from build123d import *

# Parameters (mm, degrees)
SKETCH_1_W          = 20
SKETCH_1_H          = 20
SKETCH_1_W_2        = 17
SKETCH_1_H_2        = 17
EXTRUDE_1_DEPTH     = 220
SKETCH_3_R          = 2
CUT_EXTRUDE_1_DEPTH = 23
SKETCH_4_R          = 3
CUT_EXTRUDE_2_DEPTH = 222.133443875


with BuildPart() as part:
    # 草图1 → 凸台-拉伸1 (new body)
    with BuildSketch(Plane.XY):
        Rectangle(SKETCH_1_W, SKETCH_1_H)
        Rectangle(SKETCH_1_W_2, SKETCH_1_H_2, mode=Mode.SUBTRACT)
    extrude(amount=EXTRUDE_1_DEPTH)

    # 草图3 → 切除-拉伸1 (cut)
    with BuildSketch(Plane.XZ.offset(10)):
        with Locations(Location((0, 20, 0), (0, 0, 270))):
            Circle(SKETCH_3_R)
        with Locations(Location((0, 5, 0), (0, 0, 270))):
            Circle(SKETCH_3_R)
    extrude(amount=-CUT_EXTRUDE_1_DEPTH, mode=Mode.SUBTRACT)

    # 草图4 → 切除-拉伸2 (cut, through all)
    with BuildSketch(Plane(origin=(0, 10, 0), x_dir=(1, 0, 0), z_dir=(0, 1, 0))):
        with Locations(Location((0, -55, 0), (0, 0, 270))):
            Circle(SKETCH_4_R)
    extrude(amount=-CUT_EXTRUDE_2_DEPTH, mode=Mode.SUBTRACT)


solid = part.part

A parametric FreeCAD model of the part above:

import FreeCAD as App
import Part
import Sketcher

V = App.Vector


def add_polygon(sketch, points):
    """Adds a closed chain of lines whose ends are joined by coincident constraints."""
    first, n = sketch.GeometryCount, len(points)
    for a, b in zip(points, points[1:] + points[:1]):
        sketch.addGeometry(Part.LineSegment(App.Vector(*a, 0), App.Vector(*b, 0)), False)
    for i in range(n):
        sketch.addConstraint(Sketcher.Constraint("Coincident", first + i, 2, first + (i + 1) % n, 1))

doc = App.newDocument("Part")
body = doc.addObject("PartDesign::Body", "Body")

# Sketch on XY plane
sketch1 = body.newObject("Sketcher::SketchObject", "Sketch")
sketch1.AttachmentSupport = (doc.getObject("XY_Plane"), [""])
sketch1.MapMode = "FlatFace"
add_polygon(sketch1, [(-10, 10), (-10, -10), (10, -10), (10, 10)])  # lines 0-3
add_polygon(sketch1, [(8, -8), (-8, -8), (-8, 8), (8, 8)])  # lines 4-7
sketch1.addConstraint([
    Sketcher.Constraint("Vertical", 0),
    Sketcher.Constraint("Horizontal", 1),
    Sketcher.Constraint("Vertical", 2),
    Sketcher.Constraint("Horizontal", 3),
    Sketcher.Constraint("Horizontal", 4),
    Sketcher.Constraint("Vertical", 5),
    Sketcher.Constraint("Horizontal", 6),
    Sketcher.Constraint("Vertical", 7),
    Sketcher.Constraint("Symmetric", 0, 2, 2, 2, -1, 1),
    Sketcher.Constraint("Symmetric", 4, 2, 6, 2, -1, 1),
    Sketcher.Constraint("Equal", 3, 0),
    Sketcher.Constraint("Equal", 6, 5),
    Sketcher.Constraint("DistanceX", 1, 1, 1, 2, 20.0),
    Sketcher.Constraint("DistanceX", 4, 2, 4, 1, 17.0),
])
pad1 = body.newObject("PartDesign::Pad", "Pad")
pad1.Profile = sketch1
pad1.Length = 220

# Sketch on XZ plane
sketch2 = body.newObject("Sketcher::SketchObject", "Sketch001")
sketch2.AttachmentSupport = (doc.getObject("XZ_Plane"), [""])
sketch2.MapMode = "FlatFace"
sketch2.AttachmentOffset = App.Placement(V(0, 0, 10), App.Rotation())
sketch2.addGeometry([
    Part.Circle(V(0, 20, 0), V(0, 0, 1), 2),
    Part.Circle(V(0, 5, 0), V(0, 0, 1), 2),
], False)
sketch2.addConstraint([
    Sketcher.Constraint("Equal", 0, 1),
    Sketcher.Constraint("PointOnObject", 0, 3, -2),
    Sketcher.Constraint("PointOnObject", 1, 3, -2),
    Sketcher.Constraint("Diameter", 0, 4.0),
    Sketcher.Constraint("DistanceY", -1, 1, 0, 3, 20.0),
    Sketcher.Constraint("DistanceY", -1, 1, 1, 3, 5.0),
])
pocket1 = body.newObject("PartDesign::Pocket", "Pocket")
pocket1.Profile = sketch2
pocket1.Length = 23

# Sketch on XZ plane
sketch3 = body.newObject("Sketcher::SketchObject", "Sketch002")
sketch3.AttachmentSupport = (doc.getObject("XZ_Plane"), [""])
sketch3.MapMode = "FlatFace"
sketch3.AttachmentOffset = App.Placement(V(0, 0, -10), App.Rotation())
sketch3.addGeometry(Part.Circle(V(0, 55, 0), V(0, 0, 1), 3), False)
sketch3.addConstraint([
    Sketcher.Constraint("PointOnObject", 0, 3, -2),
    Sketcher.Constraint("Diameter", 0, 6.0),
    Sketcher.Constraint("DistanceY", -1, 1, 0, 3, 55.0),
])
pocket2 = body.newObject("PartDesign::Pocket", "Pocket001")
pocket2.Profile = sketch3
pocket2.Type = "ThroughAll"
pocket2.Reversed = True

doc.recompute()
